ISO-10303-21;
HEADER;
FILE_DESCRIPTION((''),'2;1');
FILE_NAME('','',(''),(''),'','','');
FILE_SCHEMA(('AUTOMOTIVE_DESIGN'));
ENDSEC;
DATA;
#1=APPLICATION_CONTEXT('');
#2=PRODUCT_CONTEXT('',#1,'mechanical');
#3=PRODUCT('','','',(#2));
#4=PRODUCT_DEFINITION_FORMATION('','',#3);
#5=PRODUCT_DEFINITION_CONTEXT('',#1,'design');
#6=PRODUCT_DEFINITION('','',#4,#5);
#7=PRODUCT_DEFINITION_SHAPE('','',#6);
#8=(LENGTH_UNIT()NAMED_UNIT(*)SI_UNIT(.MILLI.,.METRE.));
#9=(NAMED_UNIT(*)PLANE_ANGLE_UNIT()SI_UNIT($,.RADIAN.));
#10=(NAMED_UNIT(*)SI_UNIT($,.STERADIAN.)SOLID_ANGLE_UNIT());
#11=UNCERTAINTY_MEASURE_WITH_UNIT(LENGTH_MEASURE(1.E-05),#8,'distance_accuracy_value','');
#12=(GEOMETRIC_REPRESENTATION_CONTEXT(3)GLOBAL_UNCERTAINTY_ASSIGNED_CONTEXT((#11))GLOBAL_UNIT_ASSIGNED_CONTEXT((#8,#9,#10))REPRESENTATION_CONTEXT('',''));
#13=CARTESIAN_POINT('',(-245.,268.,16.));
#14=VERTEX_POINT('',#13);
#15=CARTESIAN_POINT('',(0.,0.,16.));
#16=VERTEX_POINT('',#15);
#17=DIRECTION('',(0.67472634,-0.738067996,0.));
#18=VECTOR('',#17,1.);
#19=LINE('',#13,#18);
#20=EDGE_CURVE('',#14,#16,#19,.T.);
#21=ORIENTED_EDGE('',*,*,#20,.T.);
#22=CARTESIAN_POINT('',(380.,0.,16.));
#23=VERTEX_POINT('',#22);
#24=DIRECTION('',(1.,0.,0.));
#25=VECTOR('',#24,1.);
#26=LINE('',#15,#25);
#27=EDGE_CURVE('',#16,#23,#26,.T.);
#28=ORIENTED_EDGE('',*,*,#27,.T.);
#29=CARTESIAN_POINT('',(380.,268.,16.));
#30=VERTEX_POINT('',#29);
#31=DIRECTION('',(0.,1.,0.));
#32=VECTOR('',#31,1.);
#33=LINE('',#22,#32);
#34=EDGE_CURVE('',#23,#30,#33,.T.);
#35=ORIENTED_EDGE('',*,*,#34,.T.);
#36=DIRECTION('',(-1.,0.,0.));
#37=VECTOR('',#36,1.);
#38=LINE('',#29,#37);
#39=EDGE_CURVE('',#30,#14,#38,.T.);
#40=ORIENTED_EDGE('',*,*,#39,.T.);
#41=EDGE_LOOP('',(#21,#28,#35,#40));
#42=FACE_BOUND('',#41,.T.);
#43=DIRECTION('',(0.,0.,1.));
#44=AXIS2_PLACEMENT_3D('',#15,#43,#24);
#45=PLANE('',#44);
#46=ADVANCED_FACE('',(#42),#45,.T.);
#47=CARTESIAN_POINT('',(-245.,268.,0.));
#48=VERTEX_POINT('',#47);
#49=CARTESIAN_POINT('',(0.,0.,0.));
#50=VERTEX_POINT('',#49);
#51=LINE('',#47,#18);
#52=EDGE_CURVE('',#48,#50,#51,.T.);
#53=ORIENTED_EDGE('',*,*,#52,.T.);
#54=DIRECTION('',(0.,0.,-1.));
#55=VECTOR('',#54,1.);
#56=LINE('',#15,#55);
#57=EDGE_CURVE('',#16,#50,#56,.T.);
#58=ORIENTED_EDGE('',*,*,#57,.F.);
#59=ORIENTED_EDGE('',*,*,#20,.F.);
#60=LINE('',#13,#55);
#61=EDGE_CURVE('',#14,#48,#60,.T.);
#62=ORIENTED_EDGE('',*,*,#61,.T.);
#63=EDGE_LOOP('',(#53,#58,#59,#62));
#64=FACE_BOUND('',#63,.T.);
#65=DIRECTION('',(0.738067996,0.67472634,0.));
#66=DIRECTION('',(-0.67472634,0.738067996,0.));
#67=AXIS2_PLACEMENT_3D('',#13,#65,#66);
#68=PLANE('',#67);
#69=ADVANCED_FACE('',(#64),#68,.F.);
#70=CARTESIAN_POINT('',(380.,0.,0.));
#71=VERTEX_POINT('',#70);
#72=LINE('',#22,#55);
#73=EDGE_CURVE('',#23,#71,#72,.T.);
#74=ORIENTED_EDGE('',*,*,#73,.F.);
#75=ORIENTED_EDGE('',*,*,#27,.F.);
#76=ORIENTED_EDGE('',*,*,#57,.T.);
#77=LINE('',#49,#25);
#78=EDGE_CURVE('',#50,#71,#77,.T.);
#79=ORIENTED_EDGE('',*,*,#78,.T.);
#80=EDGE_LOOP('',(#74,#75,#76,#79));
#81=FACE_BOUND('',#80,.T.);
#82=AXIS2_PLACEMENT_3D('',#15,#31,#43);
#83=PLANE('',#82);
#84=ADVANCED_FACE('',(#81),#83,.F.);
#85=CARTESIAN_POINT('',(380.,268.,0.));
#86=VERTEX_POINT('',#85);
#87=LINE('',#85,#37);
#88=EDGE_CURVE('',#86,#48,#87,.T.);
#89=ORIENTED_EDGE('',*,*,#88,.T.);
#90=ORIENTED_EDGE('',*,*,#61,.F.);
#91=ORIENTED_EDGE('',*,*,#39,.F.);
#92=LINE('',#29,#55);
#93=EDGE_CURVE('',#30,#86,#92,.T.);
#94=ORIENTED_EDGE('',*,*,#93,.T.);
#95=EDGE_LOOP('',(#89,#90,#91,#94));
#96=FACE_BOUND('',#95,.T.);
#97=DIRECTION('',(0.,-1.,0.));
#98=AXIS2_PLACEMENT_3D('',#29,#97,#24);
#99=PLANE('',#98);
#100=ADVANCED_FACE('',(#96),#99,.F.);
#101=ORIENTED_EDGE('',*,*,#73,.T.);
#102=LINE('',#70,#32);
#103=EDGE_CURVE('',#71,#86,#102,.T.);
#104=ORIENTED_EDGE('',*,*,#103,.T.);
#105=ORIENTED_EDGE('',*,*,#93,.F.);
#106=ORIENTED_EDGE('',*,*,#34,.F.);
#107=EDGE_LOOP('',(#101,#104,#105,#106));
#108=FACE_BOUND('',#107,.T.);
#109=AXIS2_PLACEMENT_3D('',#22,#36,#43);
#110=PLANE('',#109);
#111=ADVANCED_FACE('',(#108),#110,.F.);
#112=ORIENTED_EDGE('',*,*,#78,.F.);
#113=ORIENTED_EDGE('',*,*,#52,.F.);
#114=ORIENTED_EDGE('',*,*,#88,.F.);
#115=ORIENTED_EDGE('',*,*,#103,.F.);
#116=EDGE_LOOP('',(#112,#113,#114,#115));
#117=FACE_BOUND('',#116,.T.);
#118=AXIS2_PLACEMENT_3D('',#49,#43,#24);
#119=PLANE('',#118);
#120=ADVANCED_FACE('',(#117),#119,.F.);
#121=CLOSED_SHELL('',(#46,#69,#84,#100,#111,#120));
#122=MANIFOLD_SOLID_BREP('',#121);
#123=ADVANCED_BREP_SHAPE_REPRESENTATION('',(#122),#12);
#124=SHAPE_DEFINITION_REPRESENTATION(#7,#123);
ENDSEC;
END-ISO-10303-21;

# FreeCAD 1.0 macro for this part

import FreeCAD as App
import Part
import Sketcher
from FreeCAD import Vector


def add_polygon(sketch, points):
    """Adds a closed chain of lines whose ends are joined by coincident constraints."""
    first, n = sketch.GeometryCount, len(points)
    for a, b in zip(points, points[1:] + points[:1]):
        sketch.addGeometry(Part.LineSegment(App.Vector(*a, 0), App.Vector(*b, 0)), False)
    for i in range(n):
        sketch.addConstraint(Sketcher.Constraint("Coincident", first + i, 2, first + (i + 1) % n, 1))

doc = App.newDocument("Part")
body = doc.addObject("PartDesign::Body", "Body")

sketch1 = body.newObject("Sketcher::SketchObject", "Sketch")
sketch1.AttachmentSupport = (doc.getObject("XY_Plane"), [""])
sketch1.MapMode = "FlatFace"
add_polygon(sketch1, [(0, 0), (380, 0), (380, 268), (-245, 268)])
sketch1.addConstraint([
    Sketcher.Constraint("Horizontal", 0),
    Sketcher.Constraint("Vertical", 1),
    Sketcher.Constraint("Horizontal", 2),
    Sketcher.Constraint("Coincident", 3, 2, -1, 1),
    Sketcher.Constraint("DistanceX", 0, 1, 0, 2, 380.0),
    Sketcher.Constraint("DistanceX", 2, 2, 2, 1, 625.0),
    Sketcher.Constraint("DistanceY", 1, 1, 1, 2, 268.0),
])
pad1 = body.newObject("PartDesign::Pad", "Pad")
pad1.Profile = sketch1
pad1.Length = 16

doc.recompute()
